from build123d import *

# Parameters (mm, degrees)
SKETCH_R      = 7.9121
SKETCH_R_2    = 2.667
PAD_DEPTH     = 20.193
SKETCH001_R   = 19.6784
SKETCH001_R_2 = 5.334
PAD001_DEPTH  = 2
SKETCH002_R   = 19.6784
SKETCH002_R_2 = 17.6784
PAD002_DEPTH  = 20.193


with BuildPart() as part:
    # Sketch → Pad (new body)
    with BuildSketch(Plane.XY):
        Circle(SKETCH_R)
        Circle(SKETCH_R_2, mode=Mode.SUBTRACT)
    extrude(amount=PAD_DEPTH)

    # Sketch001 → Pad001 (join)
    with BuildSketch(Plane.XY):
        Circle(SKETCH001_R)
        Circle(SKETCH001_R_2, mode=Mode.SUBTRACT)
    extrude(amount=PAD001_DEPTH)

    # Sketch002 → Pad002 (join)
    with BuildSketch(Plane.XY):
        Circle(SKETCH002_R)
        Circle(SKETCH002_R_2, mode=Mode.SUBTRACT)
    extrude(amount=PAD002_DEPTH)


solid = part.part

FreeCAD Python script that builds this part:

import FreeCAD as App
import Part
import Sketcher
from FreeCAD import Vector
Q = App.Units.Quantity

doc = App.newDocument("Part")
body = doc.addObject("PartDesign::Body", "Body")

# Sketch on XY plane
sketch1 = body.newObject("Sketcher::SketchObject", "Sketch")
sketch1.AttachmentSupport = (doc.getObject("XY_Plane"), [""])
sketch1.MapMode = "FlatFace"
sketch1.addGeometry(Part.Circle(Vector(0, 0, 0), Vector(0, 0, 1), 7.9), False)
sketch1.addGeometry(Part.Circle(Vector(0, 0, 0), Vector(0, 0, 1), 2.7), False)
sketch1.addConstraint(Sketcher.Constraint("Coincident", 0, 3, -1, 1))
sketch1.addConstraint(Sketcher.Constraint("Coincident", 1, 3, -1, 1))
sketch1.addConstraint(Sketcher.Constraint("Diameter", 1, Q("0.21 in")))
sketch1.addConstraint(Sketcher.Constraint("Diameter", 0, Q("0.623 in")))
pad1 = body.newObject("PartDesign::Pad", "Pad")
pad1.Profile = sketch1
pad1.Length = Q("0.795 in")

# Sketch on XY plane
sketch2 = body.newObject("Sketcher::SketchObject", "Sketch001")
sketch2.AttachmentSupport = (doc.getObject("XY_Plane"), [""])
sketch2.MapMode = "FlatFace"
sketch2.addGeometry(Part.Circle(Vector(0, 0, 0), Vector(0, 0, 1), 20), False)
sketch2.addGeometry(Part.Circle(Vector(0, 0, 0), Vector(0, 0, 1), 5), False)
sketch2.addConstraint(Sketcher.Constraint("Coincident", 0, 3, -1, 1))
sketch2.addConstraint(Sketcher.Constraint("Coincident", 1, 3, -1, 1))
sketch2.addConstraint(Sketcher.Constraint("Diameter", 1, Q("0.42 in")))
sketch2.addConstraint(Sketcher.Constraint("Diameter", 0, Q("39.3568 mm")))
pad2 = body.newObject("PartDesign::Pad", "Pad001")
pad2.Profile = sketch2
pad2.Length = 2

# Sketch on XY plane
sketch3 = body.newObject("Sketcher::SketchObject", "Sketch002")
sketch3.AttachmentSupport = (doc.getObject("XY_Plane"), [""])
sketch3.MapMode = "FlatFace"
sketch3.addGeometry(Part.Circle(Vector(0, 0, 0), Vector(0, 0, 1), 20), False)
sketch3.addGeometry(Part.Circle(Vector(0, 0, 0), Vector(0, 0, 1), 18), False)
sketch3.addConstraint(Sketcher.Constraint("Coincident", 0, 3, -1, 1))
sketch3.addConstraint(Sketcher.Constraint("Coincident", 1, 3, -1, 1))
sketch3.addConstraint(Sketcher.Constraint("Diameter", 1, Q("1.392 in")))
sketch3.addConstraint(Sketcher.Constraint("Diameter", 0, Q("39.3568 mm")))
pad3 = body.newObject("PartDesign::Pad", "Pad002")
pad3.Profile = sketch3
pad3.Length = Q("0.795 in")

doc.recompute()
